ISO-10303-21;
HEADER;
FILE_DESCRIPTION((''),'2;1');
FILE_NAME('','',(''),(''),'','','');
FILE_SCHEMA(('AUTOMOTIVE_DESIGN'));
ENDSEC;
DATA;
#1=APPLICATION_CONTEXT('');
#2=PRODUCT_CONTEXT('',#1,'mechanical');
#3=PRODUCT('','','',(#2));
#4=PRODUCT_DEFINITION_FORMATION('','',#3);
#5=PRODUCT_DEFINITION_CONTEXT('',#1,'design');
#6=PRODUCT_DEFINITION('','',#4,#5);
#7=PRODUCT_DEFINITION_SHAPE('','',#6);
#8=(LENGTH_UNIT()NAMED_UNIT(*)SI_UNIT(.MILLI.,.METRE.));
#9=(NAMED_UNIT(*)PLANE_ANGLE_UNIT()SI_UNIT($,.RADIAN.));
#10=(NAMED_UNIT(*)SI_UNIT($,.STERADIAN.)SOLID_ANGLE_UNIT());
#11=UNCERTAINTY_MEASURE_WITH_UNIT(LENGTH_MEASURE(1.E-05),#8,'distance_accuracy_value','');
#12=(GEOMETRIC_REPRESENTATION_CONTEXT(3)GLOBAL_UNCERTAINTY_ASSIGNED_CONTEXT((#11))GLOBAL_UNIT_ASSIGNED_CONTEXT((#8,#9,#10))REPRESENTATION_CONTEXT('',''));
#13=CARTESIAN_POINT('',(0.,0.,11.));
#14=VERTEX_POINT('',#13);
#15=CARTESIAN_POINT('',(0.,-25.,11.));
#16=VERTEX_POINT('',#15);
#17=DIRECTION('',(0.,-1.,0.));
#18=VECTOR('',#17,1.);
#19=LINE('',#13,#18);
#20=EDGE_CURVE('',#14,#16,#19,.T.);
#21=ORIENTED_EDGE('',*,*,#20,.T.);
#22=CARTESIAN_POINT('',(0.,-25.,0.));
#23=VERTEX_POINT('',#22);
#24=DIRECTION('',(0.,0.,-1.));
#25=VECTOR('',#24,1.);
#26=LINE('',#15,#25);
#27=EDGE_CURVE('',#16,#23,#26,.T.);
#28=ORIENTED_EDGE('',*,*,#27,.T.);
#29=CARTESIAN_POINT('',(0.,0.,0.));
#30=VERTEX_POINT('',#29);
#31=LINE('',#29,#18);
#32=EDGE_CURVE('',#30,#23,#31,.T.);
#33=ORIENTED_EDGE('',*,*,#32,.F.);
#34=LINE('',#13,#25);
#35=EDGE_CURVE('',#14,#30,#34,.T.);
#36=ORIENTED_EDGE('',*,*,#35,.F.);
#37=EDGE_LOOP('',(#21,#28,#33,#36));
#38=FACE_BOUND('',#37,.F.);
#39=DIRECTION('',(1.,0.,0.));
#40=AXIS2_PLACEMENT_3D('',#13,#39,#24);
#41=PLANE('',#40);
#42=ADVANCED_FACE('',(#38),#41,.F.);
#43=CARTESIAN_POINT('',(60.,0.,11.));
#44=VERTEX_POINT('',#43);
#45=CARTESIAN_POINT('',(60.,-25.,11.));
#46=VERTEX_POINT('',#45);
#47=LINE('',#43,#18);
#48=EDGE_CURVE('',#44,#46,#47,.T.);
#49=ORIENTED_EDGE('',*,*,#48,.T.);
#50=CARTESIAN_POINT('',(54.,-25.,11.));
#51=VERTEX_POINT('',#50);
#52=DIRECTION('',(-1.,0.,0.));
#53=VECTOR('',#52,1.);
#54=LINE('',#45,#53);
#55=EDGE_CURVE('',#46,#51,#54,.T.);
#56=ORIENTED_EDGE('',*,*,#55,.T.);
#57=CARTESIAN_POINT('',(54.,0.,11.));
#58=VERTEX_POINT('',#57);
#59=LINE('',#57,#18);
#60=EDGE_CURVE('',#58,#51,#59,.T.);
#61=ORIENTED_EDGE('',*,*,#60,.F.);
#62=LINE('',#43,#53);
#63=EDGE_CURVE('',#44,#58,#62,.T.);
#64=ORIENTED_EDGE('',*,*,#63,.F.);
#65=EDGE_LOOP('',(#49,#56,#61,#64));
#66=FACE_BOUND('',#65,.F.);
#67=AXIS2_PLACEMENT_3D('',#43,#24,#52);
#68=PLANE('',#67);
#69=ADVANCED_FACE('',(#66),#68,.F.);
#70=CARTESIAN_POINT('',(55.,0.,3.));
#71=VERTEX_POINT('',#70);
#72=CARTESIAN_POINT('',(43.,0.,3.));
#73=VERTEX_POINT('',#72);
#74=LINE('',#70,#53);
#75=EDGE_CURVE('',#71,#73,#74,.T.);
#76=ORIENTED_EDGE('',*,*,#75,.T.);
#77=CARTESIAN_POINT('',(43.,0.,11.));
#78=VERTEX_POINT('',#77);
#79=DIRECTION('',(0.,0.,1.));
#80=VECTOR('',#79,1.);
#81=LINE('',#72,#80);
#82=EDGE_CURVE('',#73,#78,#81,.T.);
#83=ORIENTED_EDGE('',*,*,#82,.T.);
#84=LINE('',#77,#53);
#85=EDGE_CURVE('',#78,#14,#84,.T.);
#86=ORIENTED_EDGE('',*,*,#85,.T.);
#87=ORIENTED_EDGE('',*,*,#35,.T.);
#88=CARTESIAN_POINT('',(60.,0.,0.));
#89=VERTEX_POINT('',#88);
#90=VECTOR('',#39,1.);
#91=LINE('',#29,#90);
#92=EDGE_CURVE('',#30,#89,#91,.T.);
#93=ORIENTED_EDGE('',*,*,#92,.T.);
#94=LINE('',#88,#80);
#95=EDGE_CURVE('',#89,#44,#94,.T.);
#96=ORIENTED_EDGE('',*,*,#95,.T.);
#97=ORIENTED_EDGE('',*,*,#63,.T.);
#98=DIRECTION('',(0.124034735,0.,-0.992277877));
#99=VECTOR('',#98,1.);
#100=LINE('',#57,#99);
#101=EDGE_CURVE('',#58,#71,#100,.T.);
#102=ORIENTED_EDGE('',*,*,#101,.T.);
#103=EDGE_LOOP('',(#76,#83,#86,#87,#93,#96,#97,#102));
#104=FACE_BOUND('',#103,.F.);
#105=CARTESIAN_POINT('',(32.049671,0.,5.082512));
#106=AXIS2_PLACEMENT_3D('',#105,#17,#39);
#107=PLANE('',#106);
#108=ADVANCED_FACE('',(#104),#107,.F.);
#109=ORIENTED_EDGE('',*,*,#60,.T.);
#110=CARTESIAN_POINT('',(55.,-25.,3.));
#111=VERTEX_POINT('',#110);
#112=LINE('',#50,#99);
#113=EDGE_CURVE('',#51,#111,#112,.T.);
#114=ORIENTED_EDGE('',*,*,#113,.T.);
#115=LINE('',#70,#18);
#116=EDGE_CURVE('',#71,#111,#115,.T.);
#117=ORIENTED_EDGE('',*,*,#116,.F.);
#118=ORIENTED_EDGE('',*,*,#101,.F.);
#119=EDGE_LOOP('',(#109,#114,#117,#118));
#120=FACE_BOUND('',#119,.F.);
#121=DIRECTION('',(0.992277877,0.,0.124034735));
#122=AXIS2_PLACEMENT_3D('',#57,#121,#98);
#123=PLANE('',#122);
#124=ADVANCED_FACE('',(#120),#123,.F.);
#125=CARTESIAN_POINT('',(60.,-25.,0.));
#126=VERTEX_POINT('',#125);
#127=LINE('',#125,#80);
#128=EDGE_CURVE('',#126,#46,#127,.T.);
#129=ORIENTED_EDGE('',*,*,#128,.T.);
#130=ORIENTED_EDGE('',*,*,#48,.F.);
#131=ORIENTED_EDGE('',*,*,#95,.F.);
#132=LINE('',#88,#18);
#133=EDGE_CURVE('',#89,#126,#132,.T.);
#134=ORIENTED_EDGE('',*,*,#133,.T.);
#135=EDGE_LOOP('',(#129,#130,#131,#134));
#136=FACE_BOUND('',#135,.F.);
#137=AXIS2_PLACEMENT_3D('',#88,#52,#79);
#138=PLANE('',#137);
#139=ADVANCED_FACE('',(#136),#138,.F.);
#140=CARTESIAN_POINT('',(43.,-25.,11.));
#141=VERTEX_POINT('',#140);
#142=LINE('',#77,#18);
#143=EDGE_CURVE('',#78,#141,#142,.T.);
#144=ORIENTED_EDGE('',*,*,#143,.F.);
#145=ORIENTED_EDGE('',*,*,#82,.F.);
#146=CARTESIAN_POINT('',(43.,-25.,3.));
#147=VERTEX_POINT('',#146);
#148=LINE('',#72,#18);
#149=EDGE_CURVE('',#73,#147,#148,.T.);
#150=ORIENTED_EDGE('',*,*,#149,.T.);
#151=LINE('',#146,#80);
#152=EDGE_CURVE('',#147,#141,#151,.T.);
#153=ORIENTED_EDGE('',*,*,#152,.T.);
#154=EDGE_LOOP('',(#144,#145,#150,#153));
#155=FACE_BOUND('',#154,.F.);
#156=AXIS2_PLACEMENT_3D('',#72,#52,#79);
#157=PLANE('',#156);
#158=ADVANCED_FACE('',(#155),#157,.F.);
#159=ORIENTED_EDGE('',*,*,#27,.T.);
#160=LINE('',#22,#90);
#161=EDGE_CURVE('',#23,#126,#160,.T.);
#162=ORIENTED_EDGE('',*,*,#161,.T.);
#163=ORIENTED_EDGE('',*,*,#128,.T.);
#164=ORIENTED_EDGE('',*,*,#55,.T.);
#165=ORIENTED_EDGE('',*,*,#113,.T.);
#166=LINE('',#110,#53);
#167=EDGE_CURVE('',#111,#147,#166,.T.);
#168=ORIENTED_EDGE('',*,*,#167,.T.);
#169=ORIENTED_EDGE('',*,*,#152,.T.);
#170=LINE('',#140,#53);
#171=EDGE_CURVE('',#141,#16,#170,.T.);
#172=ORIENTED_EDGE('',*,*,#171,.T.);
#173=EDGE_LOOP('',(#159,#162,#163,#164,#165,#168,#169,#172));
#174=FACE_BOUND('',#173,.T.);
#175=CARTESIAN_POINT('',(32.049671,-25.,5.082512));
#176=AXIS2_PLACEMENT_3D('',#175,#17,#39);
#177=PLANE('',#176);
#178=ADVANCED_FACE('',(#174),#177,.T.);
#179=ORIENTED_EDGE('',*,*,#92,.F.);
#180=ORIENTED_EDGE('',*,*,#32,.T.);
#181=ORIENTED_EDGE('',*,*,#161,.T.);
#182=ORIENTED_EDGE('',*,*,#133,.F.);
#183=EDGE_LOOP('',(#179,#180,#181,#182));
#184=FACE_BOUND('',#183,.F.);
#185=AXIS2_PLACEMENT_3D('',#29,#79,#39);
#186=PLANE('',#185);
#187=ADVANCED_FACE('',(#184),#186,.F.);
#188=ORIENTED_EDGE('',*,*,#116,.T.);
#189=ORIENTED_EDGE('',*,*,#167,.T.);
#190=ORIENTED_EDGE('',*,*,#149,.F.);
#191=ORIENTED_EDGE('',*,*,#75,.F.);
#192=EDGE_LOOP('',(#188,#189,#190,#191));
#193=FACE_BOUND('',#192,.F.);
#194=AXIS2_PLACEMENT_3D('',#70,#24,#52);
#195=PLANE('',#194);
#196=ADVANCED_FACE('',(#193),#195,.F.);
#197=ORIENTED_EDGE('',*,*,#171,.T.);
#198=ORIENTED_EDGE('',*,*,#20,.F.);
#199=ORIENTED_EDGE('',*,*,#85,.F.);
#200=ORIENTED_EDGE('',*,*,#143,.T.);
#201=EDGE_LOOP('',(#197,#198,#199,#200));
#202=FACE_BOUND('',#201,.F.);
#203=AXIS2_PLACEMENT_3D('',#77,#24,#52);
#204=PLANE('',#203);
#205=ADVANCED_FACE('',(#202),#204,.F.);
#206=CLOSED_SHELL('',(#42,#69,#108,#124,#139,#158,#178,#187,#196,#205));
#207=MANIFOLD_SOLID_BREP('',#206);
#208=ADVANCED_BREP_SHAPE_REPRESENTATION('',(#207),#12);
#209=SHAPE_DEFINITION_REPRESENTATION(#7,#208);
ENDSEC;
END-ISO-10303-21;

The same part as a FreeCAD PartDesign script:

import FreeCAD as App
import Part
import Sketcher
from FreeCAD import Vector

doc = App.newDocument("Part")
params = doc.addObject("Spreadsheet::Sheet", "Params")
for row, (alias, value) in enumerate([
    ("sketch1_width", "60 mm"),
    ("sketch1_width2", "6 mm"),
    ("sketch1_width3", "12 mm"),
    ("sketch1_width4", "43 mm"),
    ("sketch1_height", "11 mm"),
    ("pad1_length", "25 mm"),
], start=1):
    params.set(f"A{row}", alias)
    params.set(f"B{row}", "=" + value)
    params.setAlias(f"B{row}", alias)

body = doc.addObject("PartDesign::Body", "Body")

# Sketch on XY plane
sketch1 = doc.addObject("Sketcher::SketchObject", "Sketch")
body.addObject(sketch1)
sketch1.AttachmentSupport = (doc.XY_Plane, [""])
sketch1.MapMode = "FlatFace"
sketch1.addGeometry([
    Part.LineSegment(Vector(0, 11, 0), Vector(0, 0, 0)),  # 0
    Part.LineSegment(Vector(0, 0, 0), Vector(60, 0, 0)),  # 1
    Part.LineSegment(Vector(60, 0, 0), Vector(60, 11, 0)),  # 2
    Part.LineSegment(Vector(60, 11, 0), Vector(54, 11, 0)),  # 3
    Part.LineSegment(Vector(54, 11, 0), Vector(55, 3, 0)),  # 4
    Part.LineSegment(Vector(55, 3, 0), Vector(43, 3, 0)),  # 5
    Part.LineSegment(Vector(43, 3, 0), Vector(43, 11, 0)),  # 6
    Part.LineSegment(Vector(43, 11, 0), Vector(0, 11, 0)),  # 7
], False)
sketch1.addConstraint([
    Sketcher.Constraint("Coincident", 0, 2, 1, 1),
    Sketcher.Constraint("Coincident", 1, 2, 2, 1),
    Sketcher.Constraint("Coincident", 2, 2, 3, 1),
    Sketcher.Constraint("Coincident", 3, 2, 4, 1),
    Sketcher.Constraint("Coincident", 4, 2, 5, 1),
    Sketcher.Constraint("Coincident", 5, 2, 6, 1),
    Sketcher.Constraint("Coincident", 6, 2, 7, 1),
    Sketcher.Constraint("Coincident", 7, 2, 0, 1),
    Sketcher.Constraint("Vertical", 0),
    Sketcher.Constraint("Horizontal", 1),
    Sketcher.Constraint("Vertical", 2),
    Sketcher.Constraint("Horizontal", 3),
    Sketcher.Constraint("Horizontal", 5),
    Sketcher.Constraint("Vertical", 6),
    Sketcher.Constraint("Horizontal", 7),
    Sketcher.Constraint("Coincident", 0, 2, -1, 1),
    Sketcher.Constraint("Horizontal", 3, 2, 6, 2),
    Sketcher.Constraint("DistanceX", 1, 1, 1, 2, 60.0),
    Sketcher.Constraint("DistanceX", 3, 2, 3, 1, 6.0),
    Sketcher.Constraint("DistanceX", 5, 2, 5, 1, 12.0),
    Sketcher.Constraint("DistanceX", 7, 2, 7, 1, 43.0),
    Sketcher.Constraint("DistanceY", 0, 2, 0, 1, 11.0),
    Sketcher.Constraint("DistanceY", 6, 1, 6, 2, 8.0),
])
sketch1.setExpression("Constraints[17]", "Params.sketch1_width")
sketch1.setExpression("Constraints[18]", "Params.sketch1_width2")
sketch1.setExpression("Constraints[19]", "Params.sketch1_width3")
sketch1.setExpression("Constraints[20]", "Params.sketch1_width4")
sketch1.setExpression("Constraints[21]", "Params.sketch1_height")
pad1 = doc.addObject("PartDesign::Pad", "Pad")
body.addObject(pad1)
pad1.Profile = sketch1
pad1.setExpression("Length", "Params.pad1_length")
body2 = doc.addObject("PartDesign::Body", "Body001")
doc.recompute()

body.Placement = App.Placement(Vector(0, 0, 0), App.Rotation(Vector(1, 0, 0), 90))
boolean = doc.addObject("PartDesign::Boolean", "Boolean")
body2.addObject(boolean)
boolean.Type = "Fuse"
boolean.addObjects([body])

doc.recompute()
